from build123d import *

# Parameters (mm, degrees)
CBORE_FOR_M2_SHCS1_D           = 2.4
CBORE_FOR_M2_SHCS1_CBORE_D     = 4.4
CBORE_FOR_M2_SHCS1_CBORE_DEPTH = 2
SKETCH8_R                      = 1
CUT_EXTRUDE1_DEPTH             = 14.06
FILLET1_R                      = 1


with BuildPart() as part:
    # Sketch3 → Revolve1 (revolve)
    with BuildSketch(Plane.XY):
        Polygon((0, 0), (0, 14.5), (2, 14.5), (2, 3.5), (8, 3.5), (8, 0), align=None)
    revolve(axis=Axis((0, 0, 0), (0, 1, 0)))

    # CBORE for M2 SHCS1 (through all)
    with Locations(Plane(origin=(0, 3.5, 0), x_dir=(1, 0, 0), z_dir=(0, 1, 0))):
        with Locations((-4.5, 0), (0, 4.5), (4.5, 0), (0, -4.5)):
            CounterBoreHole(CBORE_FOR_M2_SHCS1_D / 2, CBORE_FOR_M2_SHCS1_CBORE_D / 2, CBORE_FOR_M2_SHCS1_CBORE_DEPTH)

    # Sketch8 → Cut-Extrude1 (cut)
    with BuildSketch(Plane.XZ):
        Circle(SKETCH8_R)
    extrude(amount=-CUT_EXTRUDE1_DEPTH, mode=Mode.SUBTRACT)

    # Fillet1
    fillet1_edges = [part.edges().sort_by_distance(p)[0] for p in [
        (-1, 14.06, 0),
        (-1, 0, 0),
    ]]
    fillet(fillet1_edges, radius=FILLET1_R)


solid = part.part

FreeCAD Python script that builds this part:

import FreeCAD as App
import Part
import Sketcher
from FreeCAD import Vector
Q = App.Units.Quantity


def edges_at(feature, points):
    """Names of the edges that pass closest to the given points."""
    edges = feature.Shape.Edges
    near = lambda p: min(range(len(edges)), key=lambda i: edges[i].distToShape(Part.Vertex(*p))[0])
    return sorted({f"Edge{near(p) + 1}" for p in points})


def add_polygon(sketch, points):
    """Adds a closed chain of lines whose ends are joined by coincident constraints."""
    first, n = sketch.GeometryCount, len(points)
    for a, b in zip(points, points[1:] + points[:1]):
        sketch.addGeometry(Part.LineSegment(App.Vector(*a, 0), App.Vector(*b, 0)), False)
    for i in range(n):
        sketch.addConstraint(Sketcher.Constraint("Coincident", first + i, 2, first + (i + 1) % n, 1))

doc = App.newDocument("Part")
params = doc.addObject("Spreadsheet::Sheet", "Params")
for row, (alias, value) in enumerate([
    ("sketch1_width", "8 mm"),
    ("sketch1_width2", "6 mm"),
    ("sketch1_height", "11 mm"),
    ("sketch1_height2", "14.5 mm"),
    ("revolution_angle", "360 deg"),
    ("sketch2_diameter", "2.4 mm"),
    ("hole_diameter", "2.4 mm"),
    ("hole_cbore_diameter", "4.4 mm"),
    ("hole_cbore_depth", "2 mm"),
    ("sketch3_diameter", "2 mm"),
    ("pocket1_length", "14.06 mm"),
    ("fillet_radius", "1 mm"),
], start=1):
    params.set(f"A{row}", alias)
    params.set(f"B{row}", "=" + value)
    params.setAlias(f"B{row}", alias)

body = doc.addObject("PartDesign::Body", "Body")

# Sketch on XY plane
sketch1 = doc.addObject("Sketcher::SketchObject", "Sketch")
body.addObject(sketch1)
sketch1.AttachmentSupport = (doc.XY_Plane, [""])
sketch1.MapMode = "FlatFace"
add_polygon(sketch1, [(0, 14.5), (0, 0), (8, 0), (8, 3.5), (2, 3.5), (2, 14.5)])  # lines 0-5
sketch1.addConstraint(Sketcher.Constraint("Vertical", 0))
sketch1.addConstraint(Sketcher.Constraint("Horizontal", 1))
sketch1.addConstraint(Sketcher.Constraint("Vertical", 2))
sketch1.addConstraint(Sketcher.Constraint("Horizontal", 3))
sketch1.addConstraint(Sketcher.Constraint("Vertical", 4))
sketch1.addConstraint(Sketcher.Constraint("Horizontal", 5))
sketch1.addConstraint(Sketcher.Constraint("Coincident", 0, 2, -1, 1))
sketch1.addConstraint(Sketcher.Constraint("DistanceX", 1, 1, 1, 2, Q("8 mm")))
sketch1.addConstraint(Sketcher.Constraint("DistanceX", 3, 2, 3, 1, Q("6 mm")))
sketch1.addConstraint(Sketcher.Constraint("DistanceY", 4, 1, 4, 2, Q("11 mm")))
sketch1.addConstraint(Sketcher.Constraint("DistanceY", 0, 2, 0, 1, Q("14.5 mm")))
sketch1.setExpression("Constraints[13]", "Params.sketch1_width")
sketch1.setExpression("Constraints[14]", "Params.sketch1_width2")
sketch1.setExpression("Constraints[15]", "Params.sketch1_height")
sketch1.setExpression("Constraints[16]", "Params.sketch1_height2")
revolution = doc.addObject("PartDesign::Revolution", "Revolution")
body.addObject(revolution)
revolution.Profile = sketch1
revolution.ReferenceAxis = (sketch1, ["V_Axis"])
revolution.setExpression("Angle", "Params.revolution_angle")

# Sketch on XZ plane
sketch2 = doc.addObject("Sketcher::SketchObject", "Sketch001")
body.addObject(sketch2)
sketch2.AttachmentSupport = (doc.XZ_Plane, [""])
sketch2.MapMode = "FlatFace"
sketch2.AttachmentOffset = App.Placement(Vector(0, 0, -3.5), App.Rotation())
sketch2.addGeometry(Part.Circle(Vector(-4.5, 0, 0), Vector(0, 0, 1), 1.2), False)
sketch2.addGeometry(Part.Circle(Vector(0, -4.5, 0), Vector(0, 0, 1), 1.2), False)
sketch2.addGeometry(Part.Circle(Vector(4.5, 0, 0), Vector(0, 0, 1), 1.2), False)
sketch2.addGeometry(Part.Circle(Vector(0, 4.5, 0), Vector(0, 0, 1), 1.2), False)
sketch2.addConstraint(Sketcher.Constraint("Equal", 0, 1))
sketch2.addConstraint(Sketcher.Constraint("Equal", 1, 2))
sketch2.addConstraint(Sketcher.Constraint("Equal", 2, 3))
sketch2.addConstraint(Sketcher.Constraint("Symmetric", 0, 3, 2, 3, -1, 1))
sketch2.addConstraint(Sketcher.Constraint("Symmetric", 1, 3, 3, 3, -1, 1))
sketch2.addConstraint(Sketcher.Constraint("PointOnObject", 0, 3, -1))
sketch2.addConstraint(Sketcher.Constraint("PointOnObject", 1, 3, -2))
sketch2.addConstraint(Sketcher.Constraint("Diameter", 0, Q("2.4 mm")))
sketch2.addConstraint(Sketcher.Constraint("DistanceX", 0, 3, 2, 3, Q("9 mm")))
sketch2.addConstraint(Sketcher.Constraint("DistanceY", 1, 3, 3, 3, Q("9 mm")))
sketch2.setExpression("Constraints[7]", "Params.sketch2_diameter")
doc.recompute()
hole = doc.addObject("PartDesign::Hole", "Hole")
body.addObject(hole)
hole.Profile = sketch2
hole.ThreadType = "None"
hole.setExpression("Diameter", "Params.hole_diameter")
hole.DepthType = "ThroughAll"
hole.HoleCutType = "Counterbore"
hole.setExpression("HoleCutDiameter", "Params.hole_cbore_diameter")
hole.setExpression("HoleCutDepth", "Params.hole_cbore_depth")
hole.Reversed = True

# Sketch on XZ plane
sketch3 = doc.addObject("Sketcher::SketchObject", "Sketch002")
body.addObject(sketch3)
sketch3.AttachmentSupport = (doc.XZ_Plane, [""])
sketch3.MapMode = "FlatFace"
sketch3.addGeometry(Part.Circle(Vector(0, 0, 0), Vector(0, 0, 1), 1), False)
sketch3.addConstraint(Sketcher.Constraint("Coincident", 0, 3, -1, 1))
sketch3.addConstraint(Sketcher.Constraint("Diameter", 0, Q("2 mm")))
sketch3.setExpression("Constraints[1]", "Params.sketch3_diameter")
pocket1 = doc.addObject("PartDesign::Pocket", "Pocket")
body.addObject(pocket1)
pocket1.Profile = sketch3
pocket1.setExpression("Length", "Params.pocket1_length")
doc.recompute()

fillet = doc.addObject("PartDesign::Fillet", "Fillet")
body.addObject(fillet)
fillet.Base = (pocket1, edges_at(pocket1, [(-1, 14.06, 0), (-1, 0, 0)]))
fillet.setExpression("Radius", "Params.fillet_radius")

doc.recompute()
